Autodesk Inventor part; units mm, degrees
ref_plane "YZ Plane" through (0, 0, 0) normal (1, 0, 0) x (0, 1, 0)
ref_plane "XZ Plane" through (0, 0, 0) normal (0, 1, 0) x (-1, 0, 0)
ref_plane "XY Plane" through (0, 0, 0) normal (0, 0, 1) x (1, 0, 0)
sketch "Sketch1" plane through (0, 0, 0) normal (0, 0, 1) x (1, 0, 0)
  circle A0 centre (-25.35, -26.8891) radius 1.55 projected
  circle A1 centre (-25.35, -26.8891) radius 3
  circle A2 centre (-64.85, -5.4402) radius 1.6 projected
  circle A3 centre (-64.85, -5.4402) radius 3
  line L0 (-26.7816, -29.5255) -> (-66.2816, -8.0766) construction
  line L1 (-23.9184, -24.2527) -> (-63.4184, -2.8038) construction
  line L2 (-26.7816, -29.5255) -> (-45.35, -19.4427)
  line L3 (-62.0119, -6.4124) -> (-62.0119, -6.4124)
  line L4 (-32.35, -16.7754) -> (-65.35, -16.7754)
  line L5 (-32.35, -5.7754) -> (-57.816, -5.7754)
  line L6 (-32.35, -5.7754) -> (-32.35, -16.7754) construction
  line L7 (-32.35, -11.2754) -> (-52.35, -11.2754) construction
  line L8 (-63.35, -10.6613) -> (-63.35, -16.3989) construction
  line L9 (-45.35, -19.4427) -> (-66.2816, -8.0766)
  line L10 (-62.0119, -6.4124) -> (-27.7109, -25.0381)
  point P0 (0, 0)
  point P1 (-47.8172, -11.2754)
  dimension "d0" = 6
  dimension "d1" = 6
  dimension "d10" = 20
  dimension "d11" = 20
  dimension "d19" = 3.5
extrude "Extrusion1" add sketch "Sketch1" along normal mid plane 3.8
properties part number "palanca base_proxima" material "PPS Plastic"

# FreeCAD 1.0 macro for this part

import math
import FreeCAD as App
import Part
import Sketcher
from FreeCAD import Vector

doc = App.newDocument("Part")
body = doc.addObject("PartDesign::Body", "Body")

# Sketch on XY plane
sketch1 = body.newObject("Sketcher::SketchObject", "Sketch")
sketch1.AttachmentSupport = (doc.getObject("XY_Plane"), [""])
sketch1.MapMode = "FlatFace"
sketch1.addGeometry(Part.ArcOfCircle(Part.Circle(Vector(-25.35, -26.8891, 0), Vector(0, 0, 1), 3), math.radians(-118.502544), math.radians(141.902736)), False)
sketch1.addGeometry(Part.LineSegment(Vector(-27.7109, -25.0381, 0), Vector(-62.0119, -6.4124, 0)), False)
sketch1.addGeometry(Part.ArcOfCircle(Part.Circle(Vector(-64.85, -5.4402, 0), Vector(0, 0, 1), 3), math.radians(-18.909056), math.radians(241.497456)), False)
sketch1.addGeometry(Part.LineSegment(Vector(-66.2816, -8.0766, 0), Vector(-45.35, -19.4427, 0)), False)
sketch1.addGeometry(Part.LineSegment(Vector(-45.35, -19.4427, 0), Vector(-26.7816, -29.5255, 0)), False)
sketch1.addGeometry(Part.Circle(Vector(-25.35, -26.8891, 0), Vector(0, 0, 1), 1.55), False)
sketch1.addGeometry(Part.Circle(Vector(-64.85, -5.4402, 0), Vector(0, 0, 1), 1.6), False)
sketch1.addConstraint(Sketcher.Constraint("Coincident", 0, 2, 1, 1))
sketch1.addConstraint(Sketcher.Constraint("Coincident", 1, 2, 2, 1))
sketch1.addConstraint(Sketcher.Constraint("Coincident", 2, 2, 3, 1))
sketch1.addConstraint(Sketcher.Constraint("Coincident", 3, 2, 4, 1))
sketch1.addConstraint(Sketcher.Constraint("Coincident", 4, 2, 0, 1))
sketch1.addConstraint(Sketcher.Constraint("Coincident", 5, 3, 0, 3))
sketch1.addConstraint(Sketcher.Constraint("Coincident", 6, 3, 2, 3))
sketch1.addConstraint(Sketcher.Constraint("Radius", 0, 3.0))
sketch1.addConstraint(Sketcher.Constraint("Radius", 2, 3.0))
sketch1.addConstraint(Sketcher.Constraint("DistanceX", 3, 2, 0, 3, 20.0))
sketch1.addConstraint(Sketcher.Constraint("Diameter", 5, 3.1))
sketch1.addConstraint(Sketcher.Constraint("Diameter", 6, 3.2))
sketch1.addConstraint(Sketcher.Constraint("DistanceX", 2, 3, 0, 3, 39.5))
sketch1.addConstraint(Sketcher.Constraint("DistanceX", 0, 3, -1, 1, 25.35))
sketch1.addConstraint(Sketcher.Constraint("DistanceY", 0, 3, -1, 1, 26.889))
sketch1.addConstraint(Sketcher.Constraint("DistanceX", 0, 2, -1, 1, 27.711))
sketch1.addConstraint(Sketcher.Constraint("DistanceX", 1, 2, -1, 1, 62.012))
sketch1.addConstraint(Sketcher.Constraint("DistanceY", 0, 3, 2, 3, 21.449))
sketch1.addConstraint(Sketcher.Constraint("DistanceY", 3, 2, 2, 2, 11.366))
sketch1.addConstraint(Sketcher.Constraint("DistanceY", 4, 2, 1, 2, 23.113))
sketch1.addConstraint(Sketcher.Constraint("Distance", 3, 23.8185))
pad1 = body.newObject("PartDesign::Pad", "Pad")
pad1.Profile = sketch1
pad1.Length = 3.8
pad1.Midplane = True

doc.recompute()
